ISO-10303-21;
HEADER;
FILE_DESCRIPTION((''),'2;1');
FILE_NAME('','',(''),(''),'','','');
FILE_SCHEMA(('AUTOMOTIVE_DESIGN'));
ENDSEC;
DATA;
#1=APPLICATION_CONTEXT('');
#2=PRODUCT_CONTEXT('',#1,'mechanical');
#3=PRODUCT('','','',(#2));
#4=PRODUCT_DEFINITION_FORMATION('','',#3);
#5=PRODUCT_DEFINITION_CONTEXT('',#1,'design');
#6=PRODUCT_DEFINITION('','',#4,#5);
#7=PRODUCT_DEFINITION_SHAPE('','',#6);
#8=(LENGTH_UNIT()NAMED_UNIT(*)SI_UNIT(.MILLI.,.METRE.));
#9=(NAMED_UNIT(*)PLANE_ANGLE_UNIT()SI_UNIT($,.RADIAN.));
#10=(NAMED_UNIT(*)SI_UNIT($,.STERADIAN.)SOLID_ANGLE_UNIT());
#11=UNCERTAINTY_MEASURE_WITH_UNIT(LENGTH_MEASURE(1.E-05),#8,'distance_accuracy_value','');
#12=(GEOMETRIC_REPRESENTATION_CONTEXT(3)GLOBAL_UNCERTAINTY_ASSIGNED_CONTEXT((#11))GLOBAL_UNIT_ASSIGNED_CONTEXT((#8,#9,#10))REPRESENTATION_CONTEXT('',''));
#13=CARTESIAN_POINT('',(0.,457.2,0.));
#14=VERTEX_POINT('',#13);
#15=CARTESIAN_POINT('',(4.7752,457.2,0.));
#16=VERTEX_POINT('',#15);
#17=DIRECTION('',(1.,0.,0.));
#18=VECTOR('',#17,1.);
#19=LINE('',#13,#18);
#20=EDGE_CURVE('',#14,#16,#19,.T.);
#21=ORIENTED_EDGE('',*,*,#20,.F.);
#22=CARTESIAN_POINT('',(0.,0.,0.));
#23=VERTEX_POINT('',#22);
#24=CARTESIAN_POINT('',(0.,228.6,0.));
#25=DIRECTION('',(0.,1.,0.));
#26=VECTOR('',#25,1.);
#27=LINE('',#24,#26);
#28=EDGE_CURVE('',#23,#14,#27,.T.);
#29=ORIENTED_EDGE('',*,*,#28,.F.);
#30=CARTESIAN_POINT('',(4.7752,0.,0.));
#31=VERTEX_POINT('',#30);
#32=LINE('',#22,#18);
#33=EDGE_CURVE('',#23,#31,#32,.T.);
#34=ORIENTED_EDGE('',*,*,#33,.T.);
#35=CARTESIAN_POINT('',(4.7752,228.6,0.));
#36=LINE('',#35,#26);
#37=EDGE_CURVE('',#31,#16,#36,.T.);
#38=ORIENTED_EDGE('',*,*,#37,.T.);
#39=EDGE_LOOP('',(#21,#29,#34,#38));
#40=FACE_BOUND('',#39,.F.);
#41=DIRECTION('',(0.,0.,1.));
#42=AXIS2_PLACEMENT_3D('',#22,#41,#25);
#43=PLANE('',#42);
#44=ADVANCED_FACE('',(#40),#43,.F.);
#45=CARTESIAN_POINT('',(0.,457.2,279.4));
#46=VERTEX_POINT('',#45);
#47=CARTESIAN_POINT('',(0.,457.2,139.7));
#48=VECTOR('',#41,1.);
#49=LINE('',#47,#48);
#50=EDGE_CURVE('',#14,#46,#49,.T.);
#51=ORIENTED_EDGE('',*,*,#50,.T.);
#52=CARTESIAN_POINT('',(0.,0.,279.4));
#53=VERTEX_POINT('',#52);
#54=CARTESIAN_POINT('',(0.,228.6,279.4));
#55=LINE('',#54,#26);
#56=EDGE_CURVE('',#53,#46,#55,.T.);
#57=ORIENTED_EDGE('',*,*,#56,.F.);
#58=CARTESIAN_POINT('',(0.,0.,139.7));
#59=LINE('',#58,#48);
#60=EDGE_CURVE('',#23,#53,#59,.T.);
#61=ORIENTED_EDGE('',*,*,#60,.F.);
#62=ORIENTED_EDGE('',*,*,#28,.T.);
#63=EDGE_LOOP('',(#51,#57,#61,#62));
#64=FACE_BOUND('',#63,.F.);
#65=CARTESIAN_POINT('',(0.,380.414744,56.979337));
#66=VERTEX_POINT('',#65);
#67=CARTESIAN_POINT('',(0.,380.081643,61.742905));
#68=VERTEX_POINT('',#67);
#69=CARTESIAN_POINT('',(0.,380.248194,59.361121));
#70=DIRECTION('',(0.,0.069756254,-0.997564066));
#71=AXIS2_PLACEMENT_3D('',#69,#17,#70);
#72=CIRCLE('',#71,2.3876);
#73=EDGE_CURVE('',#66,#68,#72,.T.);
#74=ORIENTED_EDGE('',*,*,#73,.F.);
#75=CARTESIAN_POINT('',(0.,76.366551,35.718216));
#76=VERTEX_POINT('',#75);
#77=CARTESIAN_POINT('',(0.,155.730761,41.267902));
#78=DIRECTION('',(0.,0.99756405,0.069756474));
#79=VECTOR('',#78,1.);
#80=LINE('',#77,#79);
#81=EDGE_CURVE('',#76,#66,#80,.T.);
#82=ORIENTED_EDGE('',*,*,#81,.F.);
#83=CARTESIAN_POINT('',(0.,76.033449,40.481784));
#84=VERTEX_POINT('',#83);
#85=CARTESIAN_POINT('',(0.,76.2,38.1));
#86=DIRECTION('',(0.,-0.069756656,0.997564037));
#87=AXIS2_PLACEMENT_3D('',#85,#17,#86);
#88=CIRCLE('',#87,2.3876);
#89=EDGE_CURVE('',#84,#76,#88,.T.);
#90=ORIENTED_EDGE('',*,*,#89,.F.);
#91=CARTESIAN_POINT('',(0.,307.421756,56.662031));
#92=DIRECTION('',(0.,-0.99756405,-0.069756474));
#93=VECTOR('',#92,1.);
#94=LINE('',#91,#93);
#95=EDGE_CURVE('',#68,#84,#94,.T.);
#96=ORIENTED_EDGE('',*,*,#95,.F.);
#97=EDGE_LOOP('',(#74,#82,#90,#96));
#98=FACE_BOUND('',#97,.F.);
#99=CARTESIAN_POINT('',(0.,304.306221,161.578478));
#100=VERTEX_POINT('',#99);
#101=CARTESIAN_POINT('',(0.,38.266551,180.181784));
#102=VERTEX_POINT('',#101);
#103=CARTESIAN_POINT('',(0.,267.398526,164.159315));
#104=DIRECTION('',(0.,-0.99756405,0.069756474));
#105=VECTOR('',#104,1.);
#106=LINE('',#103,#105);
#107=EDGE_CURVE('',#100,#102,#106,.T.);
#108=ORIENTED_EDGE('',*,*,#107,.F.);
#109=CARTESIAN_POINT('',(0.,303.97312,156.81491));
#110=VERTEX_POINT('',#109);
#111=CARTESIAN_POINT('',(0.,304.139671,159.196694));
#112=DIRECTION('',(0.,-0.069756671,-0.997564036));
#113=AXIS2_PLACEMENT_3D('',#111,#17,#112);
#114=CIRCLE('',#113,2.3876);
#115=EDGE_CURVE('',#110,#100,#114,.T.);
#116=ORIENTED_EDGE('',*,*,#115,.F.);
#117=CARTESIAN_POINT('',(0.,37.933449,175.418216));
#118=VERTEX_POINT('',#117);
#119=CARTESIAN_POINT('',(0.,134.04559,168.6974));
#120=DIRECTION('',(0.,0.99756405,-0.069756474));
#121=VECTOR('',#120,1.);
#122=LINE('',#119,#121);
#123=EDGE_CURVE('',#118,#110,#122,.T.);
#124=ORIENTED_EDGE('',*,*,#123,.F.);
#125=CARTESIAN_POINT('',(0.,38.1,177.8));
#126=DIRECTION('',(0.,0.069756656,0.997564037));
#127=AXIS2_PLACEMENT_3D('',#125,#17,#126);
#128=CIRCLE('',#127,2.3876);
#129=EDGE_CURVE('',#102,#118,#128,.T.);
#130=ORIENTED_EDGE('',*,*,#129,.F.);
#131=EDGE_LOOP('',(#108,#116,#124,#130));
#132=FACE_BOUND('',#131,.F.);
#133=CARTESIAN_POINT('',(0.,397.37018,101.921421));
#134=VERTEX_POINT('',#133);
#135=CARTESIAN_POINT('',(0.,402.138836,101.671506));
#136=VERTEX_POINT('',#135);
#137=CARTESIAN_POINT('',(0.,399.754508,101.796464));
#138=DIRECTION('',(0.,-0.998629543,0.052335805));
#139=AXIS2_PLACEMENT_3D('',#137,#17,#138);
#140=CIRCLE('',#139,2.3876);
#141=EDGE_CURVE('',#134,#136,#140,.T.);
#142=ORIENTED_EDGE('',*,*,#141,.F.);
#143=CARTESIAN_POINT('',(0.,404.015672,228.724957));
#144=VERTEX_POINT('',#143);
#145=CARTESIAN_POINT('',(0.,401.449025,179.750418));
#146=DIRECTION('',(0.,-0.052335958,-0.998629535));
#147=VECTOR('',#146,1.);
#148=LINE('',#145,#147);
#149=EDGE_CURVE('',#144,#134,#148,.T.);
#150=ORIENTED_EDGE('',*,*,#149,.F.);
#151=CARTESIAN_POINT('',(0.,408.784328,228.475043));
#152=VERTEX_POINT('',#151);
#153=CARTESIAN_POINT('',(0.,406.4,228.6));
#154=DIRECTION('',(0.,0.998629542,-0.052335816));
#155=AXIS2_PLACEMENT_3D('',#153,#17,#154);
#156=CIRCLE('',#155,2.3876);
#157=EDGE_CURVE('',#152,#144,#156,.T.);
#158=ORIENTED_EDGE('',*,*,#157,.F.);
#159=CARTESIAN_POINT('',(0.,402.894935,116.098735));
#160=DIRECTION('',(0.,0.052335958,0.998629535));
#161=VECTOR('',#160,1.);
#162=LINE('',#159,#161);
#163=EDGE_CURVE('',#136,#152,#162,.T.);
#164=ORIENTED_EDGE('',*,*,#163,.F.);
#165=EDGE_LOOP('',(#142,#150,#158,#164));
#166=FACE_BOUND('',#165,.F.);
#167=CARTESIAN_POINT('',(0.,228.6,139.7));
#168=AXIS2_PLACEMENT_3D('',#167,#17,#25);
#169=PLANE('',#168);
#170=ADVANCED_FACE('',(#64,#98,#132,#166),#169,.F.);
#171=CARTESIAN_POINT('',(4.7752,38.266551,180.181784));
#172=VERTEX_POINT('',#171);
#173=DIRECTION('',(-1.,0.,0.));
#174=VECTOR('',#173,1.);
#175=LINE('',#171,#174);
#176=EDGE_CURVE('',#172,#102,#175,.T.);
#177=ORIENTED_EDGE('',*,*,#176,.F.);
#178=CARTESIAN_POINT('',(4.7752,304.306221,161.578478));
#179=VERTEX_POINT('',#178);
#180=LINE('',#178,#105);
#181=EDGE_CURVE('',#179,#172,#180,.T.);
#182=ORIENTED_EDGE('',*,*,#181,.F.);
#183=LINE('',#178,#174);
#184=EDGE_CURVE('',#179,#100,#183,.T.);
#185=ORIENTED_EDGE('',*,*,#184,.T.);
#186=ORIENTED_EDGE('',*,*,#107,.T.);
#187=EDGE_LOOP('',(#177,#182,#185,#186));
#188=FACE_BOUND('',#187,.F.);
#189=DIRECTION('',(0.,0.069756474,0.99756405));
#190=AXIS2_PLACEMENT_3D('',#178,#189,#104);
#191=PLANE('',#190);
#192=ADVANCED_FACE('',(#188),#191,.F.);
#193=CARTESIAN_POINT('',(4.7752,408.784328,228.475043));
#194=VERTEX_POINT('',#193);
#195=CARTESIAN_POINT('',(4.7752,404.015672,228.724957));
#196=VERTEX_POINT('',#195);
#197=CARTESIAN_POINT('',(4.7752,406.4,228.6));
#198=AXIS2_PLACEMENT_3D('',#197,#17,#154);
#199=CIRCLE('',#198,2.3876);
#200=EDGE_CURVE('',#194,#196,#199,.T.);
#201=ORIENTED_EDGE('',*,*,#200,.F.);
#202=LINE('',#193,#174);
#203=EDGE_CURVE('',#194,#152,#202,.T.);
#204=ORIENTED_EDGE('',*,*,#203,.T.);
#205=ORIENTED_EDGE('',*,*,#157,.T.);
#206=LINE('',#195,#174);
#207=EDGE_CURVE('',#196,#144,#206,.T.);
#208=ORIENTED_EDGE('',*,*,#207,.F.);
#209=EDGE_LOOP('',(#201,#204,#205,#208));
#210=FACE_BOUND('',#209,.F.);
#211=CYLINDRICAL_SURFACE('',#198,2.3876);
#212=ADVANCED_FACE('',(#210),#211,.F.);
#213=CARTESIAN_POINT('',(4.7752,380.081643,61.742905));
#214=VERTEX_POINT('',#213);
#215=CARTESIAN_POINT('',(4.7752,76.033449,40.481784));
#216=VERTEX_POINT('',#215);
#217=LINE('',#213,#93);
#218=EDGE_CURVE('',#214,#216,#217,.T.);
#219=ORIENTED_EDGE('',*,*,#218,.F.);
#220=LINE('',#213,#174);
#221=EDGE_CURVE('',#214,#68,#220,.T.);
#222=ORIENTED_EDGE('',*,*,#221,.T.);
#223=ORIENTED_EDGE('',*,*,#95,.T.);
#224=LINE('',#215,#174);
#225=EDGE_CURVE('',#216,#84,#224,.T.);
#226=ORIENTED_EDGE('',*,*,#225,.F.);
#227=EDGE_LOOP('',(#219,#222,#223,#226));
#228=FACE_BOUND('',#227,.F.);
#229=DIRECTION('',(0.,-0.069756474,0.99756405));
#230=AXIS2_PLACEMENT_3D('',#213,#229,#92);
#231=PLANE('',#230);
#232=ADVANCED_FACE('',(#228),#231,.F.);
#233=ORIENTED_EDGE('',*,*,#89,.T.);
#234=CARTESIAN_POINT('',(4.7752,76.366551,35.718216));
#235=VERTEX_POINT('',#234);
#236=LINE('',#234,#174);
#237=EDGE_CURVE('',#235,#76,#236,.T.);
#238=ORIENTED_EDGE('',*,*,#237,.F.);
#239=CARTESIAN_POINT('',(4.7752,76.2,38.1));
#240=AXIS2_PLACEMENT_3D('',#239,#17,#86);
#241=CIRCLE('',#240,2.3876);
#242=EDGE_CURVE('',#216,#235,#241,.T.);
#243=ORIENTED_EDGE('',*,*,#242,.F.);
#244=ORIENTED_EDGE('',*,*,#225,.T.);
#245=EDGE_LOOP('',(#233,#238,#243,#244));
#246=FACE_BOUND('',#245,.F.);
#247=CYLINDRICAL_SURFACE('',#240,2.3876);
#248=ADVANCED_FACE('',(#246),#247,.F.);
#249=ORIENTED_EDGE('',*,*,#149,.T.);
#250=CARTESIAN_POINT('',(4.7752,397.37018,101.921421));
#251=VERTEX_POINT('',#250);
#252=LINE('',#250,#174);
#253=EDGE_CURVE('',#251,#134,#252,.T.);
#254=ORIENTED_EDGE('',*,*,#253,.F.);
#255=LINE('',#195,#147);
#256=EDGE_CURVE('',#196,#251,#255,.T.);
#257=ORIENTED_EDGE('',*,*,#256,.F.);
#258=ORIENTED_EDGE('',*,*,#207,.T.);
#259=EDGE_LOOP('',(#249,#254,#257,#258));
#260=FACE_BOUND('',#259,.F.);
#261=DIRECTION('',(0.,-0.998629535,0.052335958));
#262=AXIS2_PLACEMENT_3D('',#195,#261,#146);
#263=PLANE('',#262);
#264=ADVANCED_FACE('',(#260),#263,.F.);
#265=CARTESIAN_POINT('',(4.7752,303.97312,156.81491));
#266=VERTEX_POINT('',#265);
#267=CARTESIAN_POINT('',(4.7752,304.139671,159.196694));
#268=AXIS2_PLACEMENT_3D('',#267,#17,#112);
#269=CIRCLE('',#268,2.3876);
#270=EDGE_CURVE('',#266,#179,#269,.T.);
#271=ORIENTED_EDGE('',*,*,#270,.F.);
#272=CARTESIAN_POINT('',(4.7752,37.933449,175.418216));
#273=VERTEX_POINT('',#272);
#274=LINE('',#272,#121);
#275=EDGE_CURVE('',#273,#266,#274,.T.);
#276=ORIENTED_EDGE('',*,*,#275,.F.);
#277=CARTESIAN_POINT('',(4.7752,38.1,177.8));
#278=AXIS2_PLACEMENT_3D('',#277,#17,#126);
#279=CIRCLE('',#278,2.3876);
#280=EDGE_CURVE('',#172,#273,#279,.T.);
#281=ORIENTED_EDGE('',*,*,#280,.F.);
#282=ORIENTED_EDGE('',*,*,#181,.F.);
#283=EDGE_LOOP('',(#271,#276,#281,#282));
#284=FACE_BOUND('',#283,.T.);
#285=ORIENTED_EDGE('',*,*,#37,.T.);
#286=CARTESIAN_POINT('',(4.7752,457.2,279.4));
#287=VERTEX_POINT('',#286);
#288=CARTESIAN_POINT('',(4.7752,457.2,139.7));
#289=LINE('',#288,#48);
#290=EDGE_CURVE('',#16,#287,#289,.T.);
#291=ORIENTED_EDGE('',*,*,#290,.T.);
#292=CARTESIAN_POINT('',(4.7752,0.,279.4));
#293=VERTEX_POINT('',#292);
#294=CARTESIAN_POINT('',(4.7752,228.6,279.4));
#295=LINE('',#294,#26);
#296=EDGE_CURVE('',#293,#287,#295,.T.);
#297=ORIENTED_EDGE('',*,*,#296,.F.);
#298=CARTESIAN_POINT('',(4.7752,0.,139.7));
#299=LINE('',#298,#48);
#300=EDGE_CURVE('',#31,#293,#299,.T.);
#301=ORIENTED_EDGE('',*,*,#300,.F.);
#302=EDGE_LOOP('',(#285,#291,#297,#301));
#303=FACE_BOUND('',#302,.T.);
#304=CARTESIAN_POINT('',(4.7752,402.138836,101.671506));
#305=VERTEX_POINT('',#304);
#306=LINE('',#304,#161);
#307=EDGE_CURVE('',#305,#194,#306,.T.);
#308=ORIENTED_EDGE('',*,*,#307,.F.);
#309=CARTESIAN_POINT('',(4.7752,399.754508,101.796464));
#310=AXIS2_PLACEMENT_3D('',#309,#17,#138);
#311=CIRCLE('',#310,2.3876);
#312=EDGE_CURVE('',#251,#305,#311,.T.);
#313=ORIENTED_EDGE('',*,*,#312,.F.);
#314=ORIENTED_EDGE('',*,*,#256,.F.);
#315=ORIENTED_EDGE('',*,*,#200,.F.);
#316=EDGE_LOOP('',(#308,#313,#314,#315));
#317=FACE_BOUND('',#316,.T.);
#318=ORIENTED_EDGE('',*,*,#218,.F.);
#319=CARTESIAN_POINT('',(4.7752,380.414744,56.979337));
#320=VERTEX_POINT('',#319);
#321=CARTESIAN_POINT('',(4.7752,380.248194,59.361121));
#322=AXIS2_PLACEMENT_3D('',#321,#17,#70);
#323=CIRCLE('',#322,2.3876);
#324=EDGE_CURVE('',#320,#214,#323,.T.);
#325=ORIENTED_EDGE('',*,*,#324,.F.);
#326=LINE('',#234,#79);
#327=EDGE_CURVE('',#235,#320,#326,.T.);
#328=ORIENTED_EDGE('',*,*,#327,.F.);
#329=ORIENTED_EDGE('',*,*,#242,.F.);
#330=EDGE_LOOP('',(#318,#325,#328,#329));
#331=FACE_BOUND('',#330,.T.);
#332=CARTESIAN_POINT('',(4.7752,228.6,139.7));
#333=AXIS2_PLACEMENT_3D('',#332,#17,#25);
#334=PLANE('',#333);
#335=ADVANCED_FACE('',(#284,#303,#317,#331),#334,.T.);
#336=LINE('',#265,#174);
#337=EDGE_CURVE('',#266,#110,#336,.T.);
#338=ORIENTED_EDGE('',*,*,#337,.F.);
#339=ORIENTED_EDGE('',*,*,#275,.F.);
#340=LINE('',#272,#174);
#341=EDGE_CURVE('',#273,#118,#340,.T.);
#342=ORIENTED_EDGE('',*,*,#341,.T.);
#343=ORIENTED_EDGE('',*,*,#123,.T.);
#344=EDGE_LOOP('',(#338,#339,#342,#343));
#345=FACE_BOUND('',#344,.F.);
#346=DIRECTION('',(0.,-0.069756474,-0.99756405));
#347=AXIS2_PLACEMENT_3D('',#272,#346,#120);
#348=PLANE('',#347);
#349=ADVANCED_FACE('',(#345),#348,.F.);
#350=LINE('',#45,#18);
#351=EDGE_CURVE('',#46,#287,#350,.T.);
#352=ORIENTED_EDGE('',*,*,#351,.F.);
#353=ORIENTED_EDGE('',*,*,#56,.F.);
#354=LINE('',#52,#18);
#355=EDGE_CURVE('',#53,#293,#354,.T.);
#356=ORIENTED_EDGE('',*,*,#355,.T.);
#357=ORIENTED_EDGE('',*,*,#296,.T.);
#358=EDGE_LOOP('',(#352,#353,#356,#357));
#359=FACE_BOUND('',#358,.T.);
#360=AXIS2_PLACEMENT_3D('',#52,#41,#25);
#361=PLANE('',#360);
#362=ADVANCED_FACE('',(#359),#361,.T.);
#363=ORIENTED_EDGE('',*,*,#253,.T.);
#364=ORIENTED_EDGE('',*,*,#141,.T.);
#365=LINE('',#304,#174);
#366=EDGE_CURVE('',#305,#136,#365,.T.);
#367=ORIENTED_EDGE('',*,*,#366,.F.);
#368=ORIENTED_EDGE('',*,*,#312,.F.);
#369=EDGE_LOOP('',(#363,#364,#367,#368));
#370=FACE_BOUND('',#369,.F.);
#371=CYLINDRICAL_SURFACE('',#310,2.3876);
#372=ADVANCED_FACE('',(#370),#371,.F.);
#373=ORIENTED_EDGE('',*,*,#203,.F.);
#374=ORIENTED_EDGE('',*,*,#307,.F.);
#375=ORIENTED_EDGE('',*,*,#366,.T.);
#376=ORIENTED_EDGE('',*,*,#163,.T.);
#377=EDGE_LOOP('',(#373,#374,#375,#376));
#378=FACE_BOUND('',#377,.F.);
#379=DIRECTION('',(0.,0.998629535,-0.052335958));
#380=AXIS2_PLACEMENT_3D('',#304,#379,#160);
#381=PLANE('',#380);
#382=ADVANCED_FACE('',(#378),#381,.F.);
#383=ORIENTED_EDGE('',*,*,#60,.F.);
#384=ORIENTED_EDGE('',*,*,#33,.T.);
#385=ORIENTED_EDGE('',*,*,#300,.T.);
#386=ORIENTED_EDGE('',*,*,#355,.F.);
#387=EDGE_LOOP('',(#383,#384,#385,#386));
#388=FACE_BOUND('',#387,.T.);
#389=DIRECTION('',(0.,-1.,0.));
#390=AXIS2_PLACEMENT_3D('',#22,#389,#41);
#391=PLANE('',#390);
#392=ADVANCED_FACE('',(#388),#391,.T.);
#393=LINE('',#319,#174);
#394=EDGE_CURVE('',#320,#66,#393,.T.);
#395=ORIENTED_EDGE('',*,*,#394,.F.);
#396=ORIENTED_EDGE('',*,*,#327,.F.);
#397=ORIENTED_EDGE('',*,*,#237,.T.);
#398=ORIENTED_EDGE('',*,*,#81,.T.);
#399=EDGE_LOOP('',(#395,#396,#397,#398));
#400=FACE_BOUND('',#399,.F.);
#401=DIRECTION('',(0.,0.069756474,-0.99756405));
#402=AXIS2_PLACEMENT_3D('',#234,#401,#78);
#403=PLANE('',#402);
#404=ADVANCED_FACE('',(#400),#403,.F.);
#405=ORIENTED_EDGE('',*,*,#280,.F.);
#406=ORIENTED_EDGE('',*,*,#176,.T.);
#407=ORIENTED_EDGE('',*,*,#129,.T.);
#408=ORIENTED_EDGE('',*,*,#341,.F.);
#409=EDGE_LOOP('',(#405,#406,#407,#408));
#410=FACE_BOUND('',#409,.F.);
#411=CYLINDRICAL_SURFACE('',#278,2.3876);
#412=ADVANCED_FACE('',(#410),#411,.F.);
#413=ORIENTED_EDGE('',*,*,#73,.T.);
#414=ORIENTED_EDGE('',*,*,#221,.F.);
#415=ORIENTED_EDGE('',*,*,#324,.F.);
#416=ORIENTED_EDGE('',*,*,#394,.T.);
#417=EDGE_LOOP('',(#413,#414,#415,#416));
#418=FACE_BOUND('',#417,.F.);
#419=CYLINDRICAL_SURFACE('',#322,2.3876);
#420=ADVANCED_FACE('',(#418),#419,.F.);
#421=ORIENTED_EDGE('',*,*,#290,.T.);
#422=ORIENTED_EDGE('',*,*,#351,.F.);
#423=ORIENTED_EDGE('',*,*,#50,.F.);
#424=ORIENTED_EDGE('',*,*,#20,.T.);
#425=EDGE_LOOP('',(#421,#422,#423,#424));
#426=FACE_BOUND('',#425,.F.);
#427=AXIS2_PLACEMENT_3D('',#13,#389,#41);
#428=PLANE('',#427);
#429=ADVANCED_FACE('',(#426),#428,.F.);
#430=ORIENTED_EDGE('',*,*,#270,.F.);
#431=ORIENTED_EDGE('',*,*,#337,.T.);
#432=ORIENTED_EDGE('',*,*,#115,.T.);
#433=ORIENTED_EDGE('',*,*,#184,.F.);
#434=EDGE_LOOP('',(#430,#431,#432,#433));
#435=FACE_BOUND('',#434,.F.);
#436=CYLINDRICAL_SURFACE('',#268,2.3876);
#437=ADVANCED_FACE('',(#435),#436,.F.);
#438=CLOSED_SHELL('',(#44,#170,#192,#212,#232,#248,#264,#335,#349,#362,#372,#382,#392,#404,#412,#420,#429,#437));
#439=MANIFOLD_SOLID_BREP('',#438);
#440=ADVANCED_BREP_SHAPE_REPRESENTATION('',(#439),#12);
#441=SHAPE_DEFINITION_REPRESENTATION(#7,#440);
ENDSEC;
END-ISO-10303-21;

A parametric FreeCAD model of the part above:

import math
import FreeCAD as App
import Part
import Sketcher

V = App.Vector
Q = App.Units.Quantity

doc = App.newDocument("Part")
body = doc.addObject("PartDesign::Body", "Body")

sketch1 = body.newObject("Sketcher::SketchObject", "Sketch")
sketch1.AttachmentSupport = (doc.getObject("YZ_Plane"), [""])
sketch1.MapMode = "FlatFace"
sketch1.addGeometry([
    Part.LineSegment(V(0, 279, 0), V(0, 0, 0)),
    Part.LineSegment(V(0, 0, 0), V(457, 0, 0)),
    Part.LineSegment(V(457, 0, 0), V(457, 279, 0)),
    Part.LineSegment(V(457, 279, 0), V(0, 279, 0)),
], False)
sketch1.addConstraint([
    Sketcher.Constraint("Coincident", 0, 2, 1, 1),
    Sketcher.Constraint("Coincident", 1, 2, 2, 1),
    Sketcher.Constraint("Coincident", 2, 2, 3, 1),
    Sketcher.Constraint("Coincident", 3, 2, 0, 1),
    Sketcher.Constraint("Vertical", 0),
    Sketcher.Constraint("Horizontal", 1),
    Sketcher.Constraint("Vertical", 2),
    Sketcher.Constraint("Horizontal", 3),
    Sketcher.Constraint("Coincident", 0, 2, -1, 1),
    Sketcher.Constraint("DistanceX", 1, 1, 1, 2, Q("18 in")),
    Sketcher.Constraint("DistanceY", 0, 2, 0, 1, Q("11 in")),
])
pad1 = body.newObject("PartDesign::Pad", "Pad")
pad1.Profile = sketch1
pad1.Length = Q("0.188 in")

sketch2 = body.newObject("Sketcher::SketchObject", "Sketch001")
sketch2.AttachmentSupport = (doc.getObject("YZ_Plane"), [""])
sketch2.MapMode = "FlatFace"
sketch2.AttachmentOffset = App.Placement(V(0, 0, 0.188 * 25.4), App.Rotation())
sketch2.addGeometry([
    Part.LineSegment(V(402.1, 101.7, 0), V(408.8, 228.5, 0)),
    Part.ArcOfCircle(Part.Circle(V(406.4, 228.6, 0), V(0, 0, 1), 2.4), math.radians(-3), math.radians(177)),
    Part.LineSegment(V(404, 228.7, 0), V(397.4, 101.9, 0)),
    Part.ArcOfCircle(Part.Circle(V(399.8, 101.8, 0), V(0, 0, 1), 2.4), math.radians(177), math.radians(357)),
    Part.LineSegment(V(380.1, 61.7, 0), V(76, 40.5, 0)),
    Part.ArcOfCircle(Part.Circle(V(76.2, 38.1, 0), V(0, 0, 1), 2.4), math.radians(94), math.radians(274)),
    Part.LineSegment(V(76.4, 35.7, 0), V(380.4, 57, 0)),
    Part.ArcOfCircle(Part.Circle(V(380.2, 59.4, 0), V(0, 0, 1), 2.4), math.radians(-86), math.radians(94)),
    Part.LineSegment(V(304.3, 161.6, 0), V(38.3, 180.2, 0)),
    Part.ArcOfCircle(Part.Circle(V(38.1, 177.8, 0), V(0, 0, 1), 2.4), math.radians(86), math.radians(266)),
    Part.LineSegment(V(37.9, 175.4, 0), V(304, 156.8, 0)),
    Part.ArcOfCircle(Part.Circle(V(304.1, 159.2, 0), V(0, 0, 1), 2.4), math.radians(-94), math.radians(86)),
], False)
sketch2.addConstraint([
    Sketcher.Constraint("Tangent", 0, 2, 1, 1),
    Sketcher.Constraint("Tangent", 1, 2, 2, 1),
    Sketcher.Constraint("Tangent", 2, 2, 3, 1),
    Sketcher.Constraint("Tangent", 3, 2, 0, 1),
    Sketcher.Constraint("Tangent", 4, 2, 5, 1),
    Sketcher.Constraint("Tangent", 5, 2, 6, 1),
    Sketcher.Constraint("Tangent", 6, 2, 7, 1),
    Sketcher.Constraint("Tangent", 7, 2, 4, 1),
    Sketcher.Constraint("Tangent", 8, 2, 9, 1),
    Sketcher.Constraint("Tangent", 9, 2, 10, 1),
    Sketcher.Constraint("Tangent", 10, 2, 11, 1),
    Sketcher.Constraint("Tangent", 11, 2, 8, 1),
    Sketcher.Constraint("Equal", 1, 3),
    Sketcher.Constraint("Equal", 3, 5),
    Sketcher.Constraint("Equal", 5, 7),
    Sketcher.Constraint("Equal", 7, 9),
    Sketcher.Constraint("Equal", 9, 11),
    Sketcher.Constraint("DistanceX", -1, 1, 1, 3, Q("16 in")),
    Sketcher.Constraint("DistanceY", -1, 1, 1, 3, Q("9 in")),
    Sketcher.Constraint("DistanceX", -1, 1, 5, 3, Q("3 in")),
    Sketcher.Constraint("DistanceY", -1, 1, 9, 3, Q("7 in")),
    Sketcher.Constraint("Angle", 0, Q("87 deg")),
    Sketcher.Constraint("Angle", 4, Q("-176 deg")),
    Sketcher.Constraint("Angle", 8, Q("176 deg")),
    Sketcher.Constraint("Radius", 1, Q("0.094 in")),
    Sketcher.Constraint("DistanceY", -1, 1, 5, 3, Q("1.5 in")),
    Sketcher.Constraint("DistanceX", -1, 1, 9, 3, Q("1.5 in")),
    Sketcher.Constraint("DistanceY", 3, 2, 10, 2, Q("2.1710002 in")),
    Sketcher.Constraint("DistanceX", 11, 3, 1, 2, 99.876001),
    Sketcher.Constraint("DistanceY", 7, 3, 2, 2, 42.5603),
])
pocket1 = body.newObject("PartDesign::Pocket", "Pocket")
pocket1.Profile = sketch2
pocket1.Type = "ThroughAll"

doc.recompute()
